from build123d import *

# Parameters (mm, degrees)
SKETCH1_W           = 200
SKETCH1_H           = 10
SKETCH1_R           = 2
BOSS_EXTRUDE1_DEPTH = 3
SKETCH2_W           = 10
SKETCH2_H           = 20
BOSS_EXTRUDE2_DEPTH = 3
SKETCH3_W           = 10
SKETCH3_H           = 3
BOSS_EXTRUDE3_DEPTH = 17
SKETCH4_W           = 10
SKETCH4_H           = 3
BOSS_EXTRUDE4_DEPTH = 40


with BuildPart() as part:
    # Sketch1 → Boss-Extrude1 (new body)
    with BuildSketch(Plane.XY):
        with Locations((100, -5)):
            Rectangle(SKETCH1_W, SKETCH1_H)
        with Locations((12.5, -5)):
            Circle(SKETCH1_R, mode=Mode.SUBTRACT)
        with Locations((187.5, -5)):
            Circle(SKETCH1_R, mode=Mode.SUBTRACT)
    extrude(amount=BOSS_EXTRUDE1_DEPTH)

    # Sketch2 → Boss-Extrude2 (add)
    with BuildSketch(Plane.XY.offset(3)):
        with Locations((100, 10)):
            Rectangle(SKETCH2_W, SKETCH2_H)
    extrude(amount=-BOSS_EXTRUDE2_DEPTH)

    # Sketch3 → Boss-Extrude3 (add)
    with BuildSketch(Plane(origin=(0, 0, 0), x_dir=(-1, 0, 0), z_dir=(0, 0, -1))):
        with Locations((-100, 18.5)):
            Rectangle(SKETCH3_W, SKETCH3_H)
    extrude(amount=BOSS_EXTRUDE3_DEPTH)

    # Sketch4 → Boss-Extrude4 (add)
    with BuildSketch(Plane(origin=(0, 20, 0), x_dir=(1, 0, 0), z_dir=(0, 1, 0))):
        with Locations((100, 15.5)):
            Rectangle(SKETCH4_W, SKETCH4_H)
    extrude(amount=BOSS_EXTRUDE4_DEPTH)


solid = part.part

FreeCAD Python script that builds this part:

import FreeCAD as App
import Part
import Sketcher
Q = App.Units.Quantity


def add_polygon(sketch, points):
    """Adds a closed chain of lines whose ends are joined by coincident constraints."""
    first, n = sketch.GeometryCount, len(points)
    for a, b in zip(points, points[1:] + points[:1]):
        sketch.addGeometry(Part.LineSegment(App.Vector(*a, 0), App.Vector(*b, 0)), False)
    for i in range(n):
        sketch.addConstraint(Sketcher.Constraint("Coincident", first + i, 2, first + (i + 1) % n, 1))

doc = App.newDocument("Part")
params = doc.addObject("Spreadsheet::Sheet", "Params")
for row, (alias, value) in enumerate([
    ("sketch1_diameter", "4 mm"),
    ("sketch1_width", "200 mm"),
    ("sketch1_height", "10 mm"),
    ("pad1_length", "3 mm"),
    ("sketch2_width", "10 mm"),
    ("sketch2_height", "20 mm"),
    ("pad2_length", "3 mm"),
    ("sketch3_width", "10 mm"),
    ("sketch3_height", "3 mm"),
    ("pad3_length", "17 mm"),
    ("sketch4_width", "10 mm"),
    ("sketch4_height", "3 mm"),
    ("pad4_length", "40 mm"),
], start=1):
    params.set(f"A{row}", alias)
    params.set(f"B{row}", "=" + value)
    params.setAlias(f"B{row}", alias)

body = doc.addObject("PartDesign::Body", "Body")

# Sketch on XY plane
sketch1 = body.newObject("Sketcher::SketchObject", "Sketch")
sketch1.AttachmentSupport = (doc.getObject("XY_Plane"), [""])
sketch1.MapMode = "FlatFace"
add_polygon(sketch1, [(0, 0), (0, -10), (200, -10), (200, 0)])  # lines 0-3
sketch1.addGeometry(Part.Circle(App.Vector(12.5, -5, 0), App.Vector(0, 0, 1), 2), False)  # 4
sketch1.addGeometry(Part.Circle(App.Vector(187.5, -5, 0), App.Vector(0, 0, 1), 2), False)  # 5
sketch1.addConstraint(Sketcher.Constraint("Vertical", 0))
sketch1.addConstraint(Sketcher.Constraint("Horizontal", 1))
sketch1.addConstraint(Sketcher.Constraint("Vertical", 2))
sketch1.addConstraint(Sketcher.Constraint("Horizontal", 3))
sketch1.addConstraint(Sketcher.Constraint("Coincident", 3, 2, -1, 1))
sketch1.addConstraint(Sketcher.Constraint("Equal", 4, 5))
sketch1.addConstraint(Sketcher.Constraint("Horizontal", 4, 3, 5, 3))
sketch1.addConstraint(Sketcher.Constraint("Diameter", 4, Q("4 mm")))
sketch1.addConstraint(Sketcher.Constraint("DistanceX", 1, 1, 1, 2, Q("200 mm")))
sketch1.addConstraint(Sketcher.Constraint("DistanceY", 0, 2, 0, 1, Q("10 mm")))
sketch1.addConstraint(Sketcher.Constraint("DistanceY", 4, 3, -1, 1, Q("5 mm")))
sketch1.addConstraint(Sketcher.Constraint("DistanceX", 4, 3, 5, 3, Q("175 mm")))
sketch1.addConstraint(Sketcher.Constraint("DistanceX", -1, 1, 4, 3, Q("12.5 mm")))
sketch1.setExpression("Constraints[11]", "Params.sketch1_diameter")
sketch1.setExpression("Constraints[12]", "Params.sketch1_width")
sketch1.setExpression("Constraints[13]", "Params.sketch1_height")
pad1 = body.newObject("PartDesign::Pad", "Pad")
pad1.Profile = sketch1
pad1.setExpression("Length", "Params.pad1_length")

# Sketch on XY plane
sketch2 = body.newObject("Sketcher::SketchObject", "Sketch001")
sketch2.AttachmentSupport = (doc.getObject("XY_Plane"), [""])
sketch2.MapMode = "FlatFace"
sketch2.AttachmentOffset = App.Placement(App.Vector(0, 0, 3), App.Rotation())
add_polygon(sketch2, [(95, 20), (95, 0), (105, 0), (105, 20)])  # lines 0-3
sketch2.addConstraint(Sketcher.Constraint("Vertical", 0))
sketch2.addConstraint(Sketcher.Constraint("Horizontal", 1))
sketch2.addConstraint(Sketcher.Constraint("Vertical", 2))
sketch2.addConstraint(Sketcher.Constraint("Horizontal", 3))
sketch2.addConstraint(Sketcher.Constraint("PointOnObject", 0, 2, -1))
sketch2.addConstraint(Sketcher.Constraint("DistanceX", 1, 1, 1, 2, Q("10 mm")))
sketch2.addConstraint(Sketcher.Constraint("DistanceY", 0, 2, 0, 1, Q("20 mm")))
sketch2.addConstraint(Sketcher.Constraint("DistanceX", -1, 1, 0, 2, Q("95 mm")))
sketch2.setExpression("Constraints[9]", "Params.sketch2_width")
sketch2.setExpression("Constraints[10]", "Params.sketch2_height")
pad2 = body.newObject("PartDesign::Pad", "Pad001")
pad2.Profile = sketch2
pad2.setExpression("Length", "Params.pad2_length")
pad2.Reversed = True

# Sketch on XY plane
sketch3 = body.newObject("Sketcher::SketchObject", "Sketch002")
sketch3.AttachmentSupport = (doc.getObject("XY_Plane"), [""])
sketch3.MapMode = "FlatFace"
add_polygon(sketch3, [(105, 20), (105, 17), (95, 17), (95, 20)])  # lines 0-3
sketch3.addConstraint(Sketcher.Constraint("Vertical", 0))
sketch3.addConstraint(Sketcher.Constraint("Horizontal", 1))
sketch3.addConstraint(Sketcher.Constraint("Vertical", 2))
sketch3.addConstraint(Sketcher.Constraint("Horizontal", 3))
sketch3.addConstraint(Sketcher.Constraint("DistanceX", 1, 2, 1, 1, Q("10 mm")))
sketch3.addConstraint(Sketcher.Constraint("DistanceY", 0, 2, 0, 1, Q("3 mm")))
sketch3.addConstraint(Sketcher.Constraint("DistanceX", -1, 1, 0, 2, Q("105 mm")))
sketch3.addConstraint(Sketcher.Constraint("DistanceY", -1, 1, 0, 2, Q("17 mm")))
sketch3.setExpression("Constraints[8]", "Params.sketch3_width")
sketch3.setExpression("Constraints[9]", "Params.sketch3_height")
pad3 = body.newObject("PartDesign::Pad", "Pad002")
pad3.Profile = sketch3
pad3.setExpression("Length", "Params.pad3_length")
pad3.Reversed = True

# Sketch on XZ plane
sketch4 = body.newObject("Sketcher::SketchObject", "Sketch003")
sketch4.AttachmentSupport = (doc.getObject("XZ_Plane"), [""])
sketch4.MapMode = "FlatFace"
sketch4.AttachmentOffset = App.Placement(App.Vector(0, 0, -20), App.Rotation())
add_polygon(sketch4, [(95, -17), (95, -14), (105, -14), (105, -17)])  # lines 0-3
sketch4.addConstraint(Sketcher.Constraint("Vertical", 0))
sketch4.addConstraint(Sketcher.Constraint("Horizontal", 1))
sketch4.addConstraint(Sketcher.Constraint("Vertical", 2))
sketch4.addConstraint(Sketcher.Constraint("Horizontal", 3))
sketch4.addConstraint(Sketcher.Constraint("DistanceX", 1, 1, 1, 2, Q("10 mm")))
sketch4.addConstraint(Sketcher.Constraint("DistanceY", 0, 1, 0, 2, Q("3 mm")))
sketch4.addConstraint(Sketcher.Constraint("DistanceX", -1, 1, 0, 2, Q("95 mm")))
sketch4.addConstraint(Sketcher.Constraint("DistanceY", 0, 2, -1, 1, Q("14 mm")))
sketch4.setExpression("Constraints[8]", "Params.sketch4_width")
sketch4.setExpression("Constraints[9]", "Params.sketch4_height")
pad4 = body.newObject("PartDesign::Pad", "Pad003")
pad4.Profile = sketch4
pad4.setExpression("Length", "Params.pad4_length")
pad4.Reversed = True

doc.recompute()
